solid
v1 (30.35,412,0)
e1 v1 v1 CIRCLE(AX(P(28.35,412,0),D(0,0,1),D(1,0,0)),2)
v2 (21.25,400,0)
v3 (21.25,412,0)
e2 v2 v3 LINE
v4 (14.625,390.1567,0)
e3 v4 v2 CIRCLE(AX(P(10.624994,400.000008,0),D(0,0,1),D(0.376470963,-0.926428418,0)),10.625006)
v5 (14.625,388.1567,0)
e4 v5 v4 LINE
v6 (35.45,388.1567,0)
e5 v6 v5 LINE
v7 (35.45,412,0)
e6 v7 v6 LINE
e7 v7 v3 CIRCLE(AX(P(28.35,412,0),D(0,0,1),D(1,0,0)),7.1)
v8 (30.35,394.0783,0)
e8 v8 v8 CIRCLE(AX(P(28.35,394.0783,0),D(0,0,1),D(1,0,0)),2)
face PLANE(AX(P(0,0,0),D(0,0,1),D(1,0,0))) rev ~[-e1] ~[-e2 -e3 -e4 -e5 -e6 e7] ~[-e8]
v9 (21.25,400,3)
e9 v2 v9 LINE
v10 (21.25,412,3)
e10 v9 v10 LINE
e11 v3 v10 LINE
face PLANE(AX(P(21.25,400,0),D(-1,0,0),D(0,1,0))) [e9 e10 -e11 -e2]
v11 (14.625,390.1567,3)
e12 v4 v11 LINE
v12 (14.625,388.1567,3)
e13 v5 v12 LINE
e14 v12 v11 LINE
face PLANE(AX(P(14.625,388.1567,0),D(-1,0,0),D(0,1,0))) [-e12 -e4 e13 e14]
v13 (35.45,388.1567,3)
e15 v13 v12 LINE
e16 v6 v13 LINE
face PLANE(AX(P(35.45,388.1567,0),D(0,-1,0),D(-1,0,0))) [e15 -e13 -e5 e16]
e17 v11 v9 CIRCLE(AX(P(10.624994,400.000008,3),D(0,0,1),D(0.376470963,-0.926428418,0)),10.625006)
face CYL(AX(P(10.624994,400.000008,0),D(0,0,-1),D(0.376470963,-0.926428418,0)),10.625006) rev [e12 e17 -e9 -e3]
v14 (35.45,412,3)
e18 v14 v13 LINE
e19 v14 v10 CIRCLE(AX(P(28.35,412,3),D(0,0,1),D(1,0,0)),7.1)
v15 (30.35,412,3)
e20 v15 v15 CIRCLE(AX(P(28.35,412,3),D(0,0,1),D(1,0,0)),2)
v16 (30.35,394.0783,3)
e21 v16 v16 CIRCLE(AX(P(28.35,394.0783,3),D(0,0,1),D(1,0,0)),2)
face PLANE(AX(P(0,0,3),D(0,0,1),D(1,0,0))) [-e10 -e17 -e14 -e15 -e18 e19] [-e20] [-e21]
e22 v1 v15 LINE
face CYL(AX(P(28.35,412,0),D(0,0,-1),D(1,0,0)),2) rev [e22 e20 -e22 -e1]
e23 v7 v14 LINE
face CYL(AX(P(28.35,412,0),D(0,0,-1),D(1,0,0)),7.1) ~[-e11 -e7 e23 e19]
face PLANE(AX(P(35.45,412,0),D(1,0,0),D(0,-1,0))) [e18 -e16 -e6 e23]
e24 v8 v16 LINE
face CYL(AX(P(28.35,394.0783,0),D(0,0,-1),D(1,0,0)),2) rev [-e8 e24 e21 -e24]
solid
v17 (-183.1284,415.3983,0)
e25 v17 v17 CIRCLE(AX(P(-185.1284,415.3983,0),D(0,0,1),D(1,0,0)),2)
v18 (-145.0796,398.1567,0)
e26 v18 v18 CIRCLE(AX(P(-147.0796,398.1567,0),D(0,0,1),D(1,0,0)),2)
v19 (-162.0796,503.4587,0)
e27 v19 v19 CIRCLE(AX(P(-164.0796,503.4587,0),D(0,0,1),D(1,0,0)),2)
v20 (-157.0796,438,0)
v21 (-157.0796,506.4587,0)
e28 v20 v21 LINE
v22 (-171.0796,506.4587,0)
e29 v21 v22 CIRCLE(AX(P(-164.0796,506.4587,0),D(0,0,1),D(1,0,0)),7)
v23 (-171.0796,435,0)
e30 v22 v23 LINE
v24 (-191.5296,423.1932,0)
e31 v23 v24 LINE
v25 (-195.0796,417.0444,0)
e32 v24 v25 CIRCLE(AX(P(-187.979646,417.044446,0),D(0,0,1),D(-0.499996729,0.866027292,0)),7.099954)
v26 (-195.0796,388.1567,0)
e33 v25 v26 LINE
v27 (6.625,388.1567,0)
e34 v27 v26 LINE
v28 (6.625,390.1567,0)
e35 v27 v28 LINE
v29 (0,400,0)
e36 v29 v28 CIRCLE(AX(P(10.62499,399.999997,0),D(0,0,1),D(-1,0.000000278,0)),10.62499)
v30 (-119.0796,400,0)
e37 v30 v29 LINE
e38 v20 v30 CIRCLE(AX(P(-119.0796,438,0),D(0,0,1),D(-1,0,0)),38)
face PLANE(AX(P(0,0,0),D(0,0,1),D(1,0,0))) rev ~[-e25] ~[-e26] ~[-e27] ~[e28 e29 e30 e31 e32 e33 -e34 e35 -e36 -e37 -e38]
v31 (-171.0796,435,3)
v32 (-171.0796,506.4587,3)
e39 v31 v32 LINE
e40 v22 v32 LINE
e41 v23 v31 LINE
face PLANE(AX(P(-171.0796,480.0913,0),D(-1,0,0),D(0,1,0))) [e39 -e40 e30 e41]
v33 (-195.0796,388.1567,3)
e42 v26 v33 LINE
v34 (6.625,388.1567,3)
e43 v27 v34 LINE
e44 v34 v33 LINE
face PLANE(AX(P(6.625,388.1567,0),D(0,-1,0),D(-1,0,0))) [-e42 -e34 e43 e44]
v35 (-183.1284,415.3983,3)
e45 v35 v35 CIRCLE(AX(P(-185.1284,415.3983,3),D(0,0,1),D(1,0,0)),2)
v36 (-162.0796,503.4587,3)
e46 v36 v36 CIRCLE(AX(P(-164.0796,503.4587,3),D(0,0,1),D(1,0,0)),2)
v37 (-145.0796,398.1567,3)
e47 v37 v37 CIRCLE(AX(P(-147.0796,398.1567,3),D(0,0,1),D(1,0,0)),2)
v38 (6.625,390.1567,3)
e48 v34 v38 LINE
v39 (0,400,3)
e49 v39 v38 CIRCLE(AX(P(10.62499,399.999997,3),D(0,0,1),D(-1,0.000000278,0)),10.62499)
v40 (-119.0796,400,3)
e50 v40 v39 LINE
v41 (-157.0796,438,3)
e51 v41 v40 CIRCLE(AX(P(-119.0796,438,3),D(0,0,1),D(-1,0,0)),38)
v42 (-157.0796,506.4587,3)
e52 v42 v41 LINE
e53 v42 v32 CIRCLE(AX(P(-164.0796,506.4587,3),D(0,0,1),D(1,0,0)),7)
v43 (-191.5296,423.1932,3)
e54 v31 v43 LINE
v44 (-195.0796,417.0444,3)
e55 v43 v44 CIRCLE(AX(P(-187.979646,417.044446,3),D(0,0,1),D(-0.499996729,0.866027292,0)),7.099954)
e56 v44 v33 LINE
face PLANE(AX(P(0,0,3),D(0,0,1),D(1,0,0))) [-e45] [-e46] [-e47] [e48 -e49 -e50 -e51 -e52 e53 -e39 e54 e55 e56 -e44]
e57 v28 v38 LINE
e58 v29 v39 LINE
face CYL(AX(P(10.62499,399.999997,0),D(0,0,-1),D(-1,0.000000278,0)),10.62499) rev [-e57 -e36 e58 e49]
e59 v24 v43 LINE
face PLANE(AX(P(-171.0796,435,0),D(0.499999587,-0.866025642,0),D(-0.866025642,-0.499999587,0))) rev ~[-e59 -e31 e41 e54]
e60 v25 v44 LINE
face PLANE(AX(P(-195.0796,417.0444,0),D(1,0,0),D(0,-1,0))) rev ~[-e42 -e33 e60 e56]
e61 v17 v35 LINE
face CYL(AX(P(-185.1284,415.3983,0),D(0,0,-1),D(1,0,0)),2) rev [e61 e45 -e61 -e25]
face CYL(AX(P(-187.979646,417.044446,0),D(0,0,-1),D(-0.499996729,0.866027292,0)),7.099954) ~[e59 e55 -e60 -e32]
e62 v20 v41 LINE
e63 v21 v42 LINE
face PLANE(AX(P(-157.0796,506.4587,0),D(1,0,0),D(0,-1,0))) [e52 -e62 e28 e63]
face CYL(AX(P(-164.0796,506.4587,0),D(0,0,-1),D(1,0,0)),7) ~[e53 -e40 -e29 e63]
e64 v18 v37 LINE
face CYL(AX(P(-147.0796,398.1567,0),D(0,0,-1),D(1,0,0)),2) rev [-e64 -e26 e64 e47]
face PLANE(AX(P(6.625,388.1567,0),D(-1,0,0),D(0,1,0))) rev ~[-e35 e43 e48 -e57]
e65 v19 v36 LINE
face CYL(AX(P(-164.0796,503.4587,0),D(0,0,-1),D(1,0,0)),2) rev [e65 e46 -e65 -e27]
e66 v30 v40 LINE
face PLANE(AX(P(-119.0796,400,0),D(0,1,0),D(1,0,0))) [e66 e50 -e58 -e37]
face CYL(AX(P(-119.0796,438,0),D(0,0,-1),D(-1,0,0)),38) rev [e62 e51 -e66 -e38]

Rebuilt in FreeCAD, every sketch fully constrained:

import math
import FreeCAD as App
import Part
import Sketcher
from FreeCAD import Vector
Q = App.Units.Quantity

doc = App.newDocument("Part")
body = doc.addObject("PartDesign::Body", "Body")
body.AllowCompound = True

sketch1 = doc.addObject("Sketcher::SketchObject", "Sketch")
body.addObject(sketch1)
sketch1.AttachmentSupport = (doc.XY_Plane, [""])
sketch1.MapMode = "FlatFace"
sketch1.addGeometry([
    Part.LineSegment(Vector(-171.1, 506.5, 0), Vector(-171.1, 435, 0)),
    Part.LineSegment(Vector(-171.1, 435, 0), Vector(-191.5, 423.2, 0)),
    Part.ArcOfCircle(Part.Circle(Vector(-188, 417, 0), Vector(0, 0, 1), 7.1), math.radians(120), math.radians(180)),
    Part.LineSegment(Vector(-195.1, 417, 0), Vector(-195.1, 388.2, 0)),
    Part.LineSegment(Vector(-195.1, 388.2, 0), Vector(6.6, 388.2, 0)),
    Part.LineSegment(Vector(6.6, 388.2, 0), Vector(6.6, 390.2, 0)),
    Part.ArcOfCircle(Part.Circle(Vector(10.6, 400, 0), Vector(0, 0, 1), 10.6), math.radians(180), math.radians(248)),
    Part.LineSegment(Vector(0, 400, 0), Vector(-119.1, 400, 0)),
    Part.ArcOfCircle(Part.Circle(Vector(-119.1, 438, 0), Vector(0, 0, 1), 38), math.radians(180), math.radians(270)),
    Part.LineSegment(Vector(-157.1, 438, 0), Vector(-157.1, 506.5, 0)),
    Part.ArcOfCircle(Part.Circle(Vector(-164.1, 506.5, 0), Vector(0, 0, 1), 7), math.radians(0), math.radians(180)),
    Part.Circle(Vector(-185.1, 415.4, 0), Vector(0, 0, 1), 2),
    Part.Circle(Vector(-147.1, 398.2, 0), Vector(0, 0, 1), 2),
    Part.Circle(Vector(-164.1, 503.5, 0), Vector(0, 0, 1), 2),
    Part.LineSegment(Vector(35.5, 388.2, 0), Vector(35.5, 412, 0)),
    Part.ArcOfCircle(Part.Circle(Vector(28.4, 412, 0), Vector(0, 0, 1), 7.1), math.radians(0), math.radians(180)),
    Part.LineSegment(Vector(21.2, 412, 0), Vector(21.2, 400, 0)),
    Part.ArcOfCircle(Part.Circle(Vector(10.6, 400, 0), Vector(0, 0, 1), 10.6), math.radians(-68), math.radians(0)),
    Part.LineSegment(Vector(14.6, 390.2, 0), Vector(14.6, 388.2, 0)),
    Part.LineSegment(Vector(14.6, 388.2, 0), Vector(35.5, 388.2, 0)),
    Part.Circle(Vector(28.4, 394.1, 0), Vector(0, 0, 1), 2),
    Part.Circle(Vector(28.4, 412, 0), Vector(0, 0, 1), 2),
], False)
sketch1.addConstraint([
    Sketcher.Constraint("Coincident", 0, 2, 1, 1),
    Sketcher.Constraint("Tangent", 1, 2, 2, 1),
    Sketcher.Constraint("Tangent", 2, 2, 3, 1),
    Sketcher.Constraint("Coincident", 3, 2, 4, 1),
    Sketcher.Constraint("Coincident", 4, 2, 5, 1),
    Sketcher.Constraint("Coincident", 5, 2, 6, 2),
    Sketcher.Constraint("Coincident", 6, 1, 7, 1),
    Sketcher.Constraint("Tangent", 7, 2, 8, 2),
    Sketcher.Constraint("Tangent", 8, 1, 9, 1),
    Sketcher.Constraint("Tangent", 9, 2, 10, 1),
    Sketcher.Constraint("Tangent", 10, 2, 0, 1),
    Sketcher.Constraint("Tangent", 14, 2, 15, 1),
    Sketcher.Constraint("Tangent", 15, 2, 16, 1),
    Sketcher.Constraint("Tangent", 16, 2, 17, 2),
    Sketcher.Constraint("Coincident", 17, 1, 18, 1),
    Sketcher.Constraint("Coincident", 18, 2, 19, 1),
    Sketcher.Constraint("Coincident", 19, 2, 14, 1),
    Sketcher.Constraint("Vertical", 0),
    Sketcher.Constraint("Vertical", 3),
    Sketcher.Constraint("Horizontal", 4),
    Sketcher.Constraint("Vertical", 5),
    Sketcher.Constraint("Horizontal", 7),
    Sketcher.Constraint("Vertical", 9),
    Sketcher.Constraint("Vertical", 14),
    Sketcher.Constraint("Vertical", 16),
    Sketcher.Constraint("Vertical", 18),
    Sketcher.Constraint("Horizontal", 19),
    Sketcher.Constraint("Coincident", 17, 3, 6, 3),
    Sketcher.Constraint("Coincident", 21, 3, 15, 3),
    Sketcher.Constraint("Equal", 11, 12),
    Sketcher.Constraint("Equal", 12, 13),
    Sketcher.Constraint("Equal", 2, 15),
    Sketcher.Constraint("Equal", 6, 17),
    Sketcher.Constraint("Equal", 13, 20),
    Sketcher.Constraint("Equal", 20, 21),
    Sketcher.Constraint("PointOnObject", 6, 1, -2),
    Sketcher.Constraint("Horizontal", 17, 3, 6, 1),
    Sketcher.Constraint("Horizontal", 5, 2, 17, 1),
    Sketcher.Constraint("Horizontal", 4, 2, 18, 2),
    Sketcher.Constraint("Vertical", 10, 3, 13, 3),
    Sketcher.Constraint("Vertical", 15, 3, 20, 3),
    Sketcher.Constraint("Diameter", 11, 4.0),
    Sketcher.Constraint("Radius", 8, 38.0),
    Sketcher.Constraint("Radius", 10, 7.0),
    Sketcher.Constraint("Radius", 2, 7.1),
    Sketcher.Constraint("DistanceY", 5, 1, 5, 2, 2.0),
    Sketcher.Constraint("DistanceY", 16, 2, 16, 1, 12.0),
    Sketcher.Constraint("Radius", 6, 10.625),
    Sketcher.Constraint("DistanceY", 13, 3, 10, 3, 3.0),
    Sketcher.Constraint("DistanceX", 0, 2, 12, 3, 24.0),
    Sketcher.Constraint("DistanceY", 0, 2, 8, 3, 3.0),
    Sketcher.Constraint("DistanceX", 2, 2, 0, 2, 24.0),
    Sketcher.Constraint("DistanceY", 3, 2, 12, 3, 10.0),
    Sketcher.Constraint("DistanceX", 4, 2, 6, 3, 4.0),
    Sketcher.Constraint("Angle", 1, Q("-150 deg")),
    Sketcher.Constraint("DistanceY", -1, 1, 6, 3, 400.0),
    Sketcher.Constraint("DistanceX", 4, 1, 4, 2, 201.7046),
    Sketcher.Constraint("DistanceY", 0, 2, 0, 1, 71.4587),
    Sketcher.Constraint("DistanceY", 11, 3, 2, 3, 1.646),
    Sketcher.Constraint("DistanceX", 11, 3, -1, 1, 185.1284),
    Sketcher.Constraint("DistanceY", -1, 1, 20, 3, 394.0783),
])
pad1 = doc.addObject("PartDesign::Pad", "Pad")
body.addObject(pad1)
pad1.Profile = sketch1
pad1.Length = 3

doc.recompute()
